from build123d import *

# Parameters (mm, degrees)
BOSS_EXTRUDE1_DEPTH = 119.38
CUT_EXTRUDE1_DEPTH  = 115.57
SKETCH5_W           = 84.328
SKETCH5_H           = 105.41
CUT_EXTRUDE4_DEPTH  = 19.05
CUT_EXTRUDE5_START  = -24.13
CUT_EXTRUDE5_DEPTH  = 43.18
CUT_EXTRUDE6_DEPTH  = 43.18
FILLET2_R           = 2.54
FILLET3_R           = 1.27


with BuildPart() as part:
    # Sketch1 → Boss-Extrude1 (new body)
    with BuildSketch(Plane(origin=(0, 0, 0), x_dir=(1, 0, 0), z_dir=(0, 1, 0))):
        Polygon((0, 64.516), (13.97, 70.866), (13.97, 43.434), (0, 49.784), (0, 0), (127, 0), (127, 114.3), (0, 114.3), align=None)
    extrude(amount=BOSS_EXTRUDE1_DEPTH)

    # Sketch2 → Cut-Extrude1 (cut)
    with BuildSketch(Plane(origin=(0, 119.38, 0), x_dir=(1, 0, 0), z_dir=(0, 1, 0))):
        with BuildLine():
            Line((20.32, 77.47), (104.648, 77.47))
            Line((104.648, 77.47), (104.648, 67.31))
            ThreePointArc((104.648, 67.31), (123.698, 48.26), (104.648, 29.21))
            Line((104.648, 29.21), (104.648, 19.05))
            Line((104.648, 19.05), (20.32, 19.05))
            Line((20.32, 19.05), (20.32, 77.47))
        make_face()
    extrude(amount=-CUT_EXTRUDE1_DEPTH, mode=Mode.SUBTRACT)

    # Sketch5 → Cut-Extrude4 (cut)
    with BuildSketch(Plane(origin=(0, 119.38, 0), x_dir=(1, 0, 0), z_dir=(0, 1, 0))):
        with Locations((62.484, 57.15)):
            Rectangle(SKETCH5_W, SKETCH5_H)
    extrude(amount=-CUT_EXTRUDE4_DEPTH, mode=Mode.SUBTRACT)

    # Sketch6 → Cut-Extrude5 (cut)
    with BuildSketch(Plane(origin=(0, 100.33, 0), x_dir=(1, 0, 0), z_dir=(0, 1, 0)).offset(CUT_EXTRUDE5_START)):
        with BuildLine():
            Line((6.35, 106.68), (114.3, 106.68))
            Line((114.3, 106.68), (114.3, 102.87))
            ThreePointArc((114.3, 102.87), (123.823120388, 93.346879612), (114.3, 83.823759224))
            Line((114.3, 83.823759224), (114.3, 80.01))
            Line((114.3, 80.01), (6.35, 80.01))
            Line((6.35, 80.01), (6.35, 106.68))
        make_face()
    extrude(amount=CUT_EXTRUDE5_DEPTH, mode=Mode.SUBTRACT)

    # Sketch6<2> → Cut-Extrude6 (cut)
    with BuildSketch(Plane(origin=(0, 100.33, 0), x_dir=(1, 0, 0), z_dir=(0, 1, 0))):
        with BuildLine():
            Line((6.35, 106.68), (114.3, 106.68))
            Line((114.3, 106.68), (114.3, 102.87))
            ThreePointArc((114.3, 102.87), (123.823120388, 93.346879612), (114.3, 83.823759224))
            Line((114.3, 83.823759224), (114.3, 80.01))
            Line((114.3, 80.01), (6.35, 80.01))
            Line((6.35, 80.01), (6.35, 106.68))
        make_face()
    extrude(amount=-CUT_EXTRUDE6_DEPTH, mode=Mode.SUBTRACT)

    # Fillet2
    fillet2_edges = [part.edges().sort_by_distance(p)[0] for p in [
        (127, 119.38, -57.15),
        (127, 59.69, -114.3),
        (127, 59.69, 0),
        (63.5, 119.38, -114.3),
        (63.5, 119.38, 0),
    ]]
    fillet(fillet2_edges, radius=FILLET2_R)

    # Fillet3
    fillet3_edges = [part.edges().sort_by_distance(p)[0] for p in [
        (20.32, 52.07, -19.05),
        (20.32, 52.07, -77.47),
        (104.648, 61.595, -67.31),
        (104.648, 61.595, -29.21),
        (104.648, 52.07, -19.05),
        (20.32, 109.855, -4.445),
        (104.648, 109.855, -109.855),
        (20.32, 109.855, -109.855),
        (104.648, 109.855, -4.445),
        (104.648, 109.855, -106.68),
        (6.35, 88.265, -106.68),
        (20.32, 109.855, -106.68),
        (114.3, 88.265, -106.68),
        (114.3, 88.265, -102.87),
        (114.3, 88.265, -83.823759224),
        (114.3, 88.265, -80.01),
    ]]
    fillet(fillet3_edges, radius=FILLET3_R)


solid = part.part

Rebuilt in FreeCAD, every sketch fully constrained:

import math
import FreeCAD as App
import Part
import Sketcher
Q = App.Units.Quantity


def edges_at(feature, points):
    """Names of the edges that pass closest to the given points."""
    edges = feature.Shape.Edges
    near = lambda p: min(range(len(edges)), key=lambda i: edges[i].distToShape(Part.Vertex(*p))[0])
    return sorted({f"Edge{near(p) + 1}" for p in points})


def add_polygon(sketch, points):
    """Adds a closed chain of lines whose ends are joined by coincident constraints."""
    first, n = sketch.GeometryCount, len(points)
    for a, b in zip(points, points[1:] + points[:1]):
        sketch.addGeometry(Part.LineSegment(App.Vector(*a, 0), App.Vector(*b, 0)), False)
    for i in range(n):
        sketch.addConstraint(Sketcher.Constraint("Coincident", first + i, 2, first + (i + 1) % n, 1))

doc = App.newDocument("Part")
body = doc.addObject("PartDesign::Body", "Body")

# Sketch on XZ plane
sketch1 = doc.addObject("Sketcher::SketchObject", "Sketch")
body.addObject(sketch1)
sketch1.AttachmentSupport = (doc.XZ_Plane, [""])
sketch1.MapMode = "FlatFace"
add_polygon(sketch1, [(0, -64.516), (13.97, -70.866), (13.97, -43.434), (0, -49.784), (0, 0), (127, 0), (127, -114.3), (0, -114.3)])  # lines 0-7
sketch1.addConstraint(Sketcher.Constraint("Vertical", 1))
sketch1.addConstraint(Sketcher.Constraint("Vertical", 3))
sketch1.addConstraint(Sketcher.Constraint("Horizontal", 4))
sketch1.addConstraint(Sketcher.Constraint("Vertical", 5))
sketch1.addConstraint(Sketcher.Constraint("Horizontal", 6))
sketch1.addConstraint(Sketcher.Constraint("Vertical", 7))
sketch1.addConstraint(Sketcher.Constraint("Coincident", 3, 2, -1, 1))
sketch1.addConstraint(Sketcher.Constraint("PointOnObject", 6, 2, -2))
sketch1.addConstraint(Sketcher.Constraint("Equal", 3, 7))
sketch1.addConstraint(Sketcher.Constraint("Equal", 0, 2))
sketch1.addConstraint(Sketcher.Constraint("DistanceX", 4, 1, 4, 2, Q("5 in")))
sketch1.addConstraint(Sketcher.Constraint("DistanceY", 5, 2, 5, 1, Q("4.5 in")))
sketch1.addConstraint(Sketcher.Constraint("DistanceY", 1, 1, 1, 2, Q("1.08 in")))
sketch1.addConstraint(Sketcher.Constraint("DistanceY", 3, 1, 3, 2, Q("1.96 in")))
sketch1.addConstraint(Sketcher.Constraint("DistanceX", -1, 1, 0, 2, Q("0.55 in")))
pad1 = doc.addObject("PartDesign::Pad", "Pad")
body.addObject(pad1)
pad1.Profile = sketch1
pad1.Length = Q("4.7 in")
pad1.Reversed = True

# Sketch on XZ plane
sketch2 = doc.addObject("Sketcher::SketchObject", "Sketch001")
body.addObject(sketch2)
sketch2.AttachmentSupport = (doc.XZ_Plane, [""])
sketch2.MapMode = "FlatFace"
sketch2.AttachmentOffset = App.Placement(App.Vector(0, 0, -4.7 * 25.4), App.Rotation())
sketch2.addGeometry(Part.LineSegment(App.Vector(104.648, -77.47, 0), App.Vector(20.32, -77.47, 0)), False)
sketch2.addGeometry(Part.LineSegment(App.Vector(20.32, -77.47, 0), App.Vector(20.32, -19.05, 0)), False)
sketch2.addGeometry(Part.LineSegment(App.Vector(20.32, -19.05, 0), App.Vector(104.648, -19.05, 0)), False)
sketch2.addGeometry(Part.LineSegment(App.Vector(104.648, -19.05, 0), App.Vector(104.648, -29.21, 0)), False)
sketch2.addGeometry(Part.ArcOfCircle(Part.Circle(App.Vector(104.648, -48.26, 0), App.Vector(0, 0, 1), 19.05), math.radians(-90), math.radians(90)), False)
sketch2.addGeometry(Part.LineSegment(App.Vector(104.648, -67.31, 0), App.Vector(104.648, -77.47, 0)), False)
sketch2.addConstraint(Sketcher.Constraint("Coincident", 0, 2, 1, 1))
sketch2.addConstraint(Sketcher.Constraint("Coincident", 1, 2, 2, 1))
sketch2.addConstraint(Sketcher.Constraint("Coincident", 2, 2, 3, 1))
sketch2.addConstraint(Sketcher.Constraint("Coincident", 3, 2, 4, 2))
sketch2.addConstraint(Sketcher.Constraint("Coincident", 4, 1, 5, 1))
sketch2.addConstraint(Sketcher.Constraint("Coincident", 5, 2, 0, 1))
sketch2.addConstraint(Sketcher.Constraint("Horizontal", 0))
sketch2.addConstraint(Sketcher.Constraint("Vertical", 1))
sketch2.addConstraint(Sketcher.Constraint("Horizontal", 2))
sketch2.addConstraint(Sketcher.Constraint("Vertical", 3))
sketch2.addConstraint(Sketcher.Constraint("Vertical", 5))
sketch2.addConstraint(Sketcher.Constraint("Vertical", 4, 3, 2, 2))
sketch2.addConstraint(Sketcher.Constraint("Vertical", 3, 2, 4, 1))
sketch2.addConstraint(Sketcher.Constraint("Equal", 3, 5))
sketch2.addConstraint(Sketcher.Constraint("Radius", 4, Q("0.75 in")))
sketch2.addConstraint(Sketcher.Constraint("DistanceY", 1, 1, 1, 2, Q("2.3 in")))
sketch2.addConstraint(Sketcher.Constraint("DistanceX", 0, 2, 0, 1, Q("3.32 in")))
sketch2.addConstraint(Sketcher.Constraint("DistanceY", 4, 3, -1, 1, Q("1.9 in")))
sketch2.addConstraint(Sketcher.Constraint("DistanceX", -1, 1, 0, 2, Q("0.8 in")))
pocket1 = doc.addObject("PartDesign::Pocket", "Pocket")
body.addObject(pocket1)
pocket1.Profile = sketch2
pocket1.Length = Q("4.55 in")
pocket1.Reversed = True

# Sketch on XZ plane
sketch3 = doc.addObject("Sketcher::SketchObject", "Sketch002")
body.addObject(sketch3)
sketch3.AttachmentSupport = (doc.XZ_Plane, [""])
sketch3.MapMode = "FlatFace"
sketch3.AttachmentOffset = App.Placement(App.Vector(0, 0, -4.7 * 25.4), App.Rotation())
add_polygon(sketch3, [(20.32, -109.855), (20.32, -4.445), (104.648, -4.445), (104.648, -109.855)])  # lines 0-3
sketch3.addConstraint(Sketcher.Constraint("Vertical", 0))
sketch3.addConstraint(Sketcher.Constraint("Horizontal", 1))
sketch3.addConstraint(Sketcher.Constraint("Vertical", 2))
sketch3.addConstraint(Sketcher.Constraint("Horizontal", 3))
sketch3.addConstraint(Sketcher.Constraint("DistanceX", 1, 1, 1, 2, Q("3.32 in")))
sketch3.addConstraint(Sketcher.Constraint("DistanceY", 0, 1, 0, 2, Q("4.15 in")))
sketch3.addConstraint(Sketcher.Constraint("DistanceX", -1, 1, 0, 2, Q("0.8 in")))
sketch3.addConstraint(Sketcher.Constraint("DistanceY", 0, 2, -1, 1, Q("0.175 in")))
pocket2 = doc.addObject("PartDesign::Pocket", "Pocket001")
body.addObject(pocket2)
pocket2.Profile = sketch3
pocket2.Length = Q("0.75 in")
pocket2.Reversed = True

# Sketch on XZ plane
sketch4 = doc.addObject("Sketcher::SketchObject", "Sketch003")
body.addObject(sketch4)
sketch4.AttachmentSupport = (doc.XZ_Plane, [""])
sketch4.MapMode = "FlatFace"
sketch4.AttachmentOffset = App.Placement(App.Vector(0, 0, -3 * 25.4), App.Rotation())
sketch4.addGeometry(Part.LineSegment(App.Vector(114.3, -106.68, 0), App.Vector(6.35, -106.68, 0)), False)
sketch4.addGeometry(Part.LineSegment(App.Vector(6.35, -106.68, 0), App.Vector(6.35, -80.01, 0)), False)
sketch4.addGeometry(Part.LineSegment(App.Vector(6.35, -80.01, 0), App.Vector(114.3, -80.01, 0)), False)
sketch4.addGeometry(Part.LineSegment(App.Vector(114.3, -80.01, 0), App.Vector(114.3, -83.823759, 0)), False)
sketch4.addGeometry(Part.ArcOfCircle(Part.Circle(App.Vector(114.3, -93.34688, 0), App.Vector(0, 0, 1), 9.52312), math.radians(-90), math.radians(90)), False)
sketch4.addGeometry(Part.LineSegment(App.Vector(114.3, -102.87, 0), App.Vector(114.3, -106.68, 0)), False)
sketch4.addConstraint(Sketcher.Constraint("Coincident", 0, 2, 1, 1))
sketch4.addConstraint(Sketcher.Constraint("Coincident", 1, 2, 2, 1))
sketch4.addConstraint(Sketcher.Constraint("Coincident", 2, 2, 3, 1))
sketch4.addConstraint(Sketcher.Constraint("Coincident", 3, 2, 4, 2))
sketch4.addConstraint(Sketcher.Constraint("Coincident", 4, 1, 5, 1))
sketch4.addConstraint(Sketcher.Constraint("Coincident", 5, 2, 0, 1))
sketch4.addConstraint(Sketcher.Constraint("Horizontal", 0))
sketch4.addConstraint(Sketcher.Constraint("Vertical", 1))
sketch4.addConstraint(Sketcher.Constraint("Horizontal", 2))
sketch4.addConstraint(Sketcher.Constraint("Vertical", 3))
sketch4.addConstraint(Sketcher.Constraint("Vertical", 5))
sketch4.addConstraint(Sketcher.Constraint("Vertical", 4, 3, 2, 2))
sketch4.addConstraint(Sketcher.Constraint("Vertical", 3, 2, 4, 1))
sketch4.addConstraint(Sketcher.Constraint("DistanceX", 0, 2, 0, 1, Q("4.25 in")))
sketch4.addConstraint(Sketcher.Constraint("DistanceY", 1, 1, 1, 2, Q("1.05 in")))
sketch4.addConstraint(Sketcher.Constraint("DistanceY", 5, 2, 5, 1, Q("0.15 in")))
sketch4.addConstraint(Sketcher.Constraint("DistanceX", -1, 1, 4, 3, Q("4.5 in")))
sketch4.addConstraint(Sketcher.Constraint("DistanceY", 0, 2, -1, 1, Q("4.2 in")))
sketch4.addConstraint(Sketcher.Constraint("Radius", 4, 9.52312))
pocket3 = doc.addObject("PartDesign::Pocket", "Pocket002")
body.addObject(pocket3)
pocket3.Profile = sketch4
pocket3.Length = Q("1.7 in")

# Sketch on XZ plane
sketch5 = doc.addObject("Sketcher::SketchObject", "Sketch004")
body.addObject(sketch5)
sketch5.AttachmentSupport = (doc.XZ_Plane, [""])
sketch5.MapMode = "FlatFace"
sketch5.AttachmentOffset = App.Placement(App.Vector(0, 0, -3.95 * 25.4), App.Rotation())
sketch5.addGeometry(Part.LineSegment(App.Vector(114.3, -106.68, 0), App.Vector(6.35, -106.68, 0)), False)
sketch5.addGeometry(Part.LineSegment(App.Vector(6.35, -106.68, 0), App.Vector(6.35, -80.01, 0)), False)
sketch5.addGeometry(Part.LineSegment(App.Vector(6.35, -80.01, 0), App.Vector(114.3, -80.01, 0)), False)
sketch5.addGeometry(Part.LineSegment(App.Vector(114.3, -80.01, 0), App.Vector(114.3, -83.823759, 0)), False)
sketch5.addGeometry(Part.ArcOfCircle(Part.Circle(App.Vector(114.3, -93.34688, 0), App.Vector(0, 0, 1), 9.52312), math.radians(-90), math.radians(90)), False)
sketch5.addGeometry(Part.LineSegment(App.Vector(114.3, -102.87, 0), App.Vector(114.3, -106.68, 0)), False)
sketch5.addConstraint(Sketcher.Constraint("Coincident", 0, 2, 1, 1))
sketch5.addConstraint(Sketcher.Constraint("Coincident", 1, 2, 2, 1))
sketch5.addConstraint(Sketcher.Constraint("Coincident", 2, 2, 3, 1))
sketch5.addConstraint(Sketcher.Constraint("Coincident", 3, 2, 4, 2))
sketch5.addConstraint(Sketcher.Constraint("Coincident", 4, 1, 5, 1))
sketch5.addConstraint(Sketcher.Constraint("Coincident", 5, 2, 0, 1))
sketch5.addConstraint(Sketcher.Constraint("Horizontal", 0))
sketch5.addConstraint(Sketcher.Constraint("Vertical", 1))
sketch5.addConstraint(Sketcher.Constraint("Horizontal", 2))
sketch5.addConstraint(Sketcher.Constraint("Vertical", 3))
sketch5.addConstraint(Sketcher.Constraint("Vertical", 5))
sketch5.addConstraint(Sketcher.Constraint("Vertical", 4, 3, 2, 2))
sketch5.addConstraint(Sketcher.Constraint("Vertical", 3, 2, 4, 1))
sketch5.addConstraint(Sketcher.Constraint("DistanceX", 0, 2, 0, 1, Q("4.25 in")))
sketch5.addConstraint(Sketcher.Constraint("DistanceY", 1, 1, 1, 2, Q("1.05 in")))
sketch5.addConstraint(Sketcher.Constraint("DistanceY", 5, 2, 5, 1, Q("0.15 in")))
sketch5.addConstraint(Sketcher.Constraint("DistanceX", -1, 1, 4, 3, Q("4.5 in")))
sketch5.addConstraint(Sketcher.Constraint("DistanceY", 0, 2, -1, 1, Q("4.2 in")))
sketch5.addConstraint(Sketcher.Constraint("Radius", 4, 9.52312))
pocket4 = doc.addObject("PartDesign::Pocket", "Pocket003")
body.addObject(pocket4)
pocket4.Profile = sketch5
pocket4.Length = Q("1.7 in")
pocket4.Reversed = True
doc.recompute()

fillet = doc.addObject("PartDesign::Fillet", "Fillet")
body.addObject(fillet)
fillet.Base = (pocket4, edges_at(pocket4, [
    (127, 119.38, -57.15),
    (127, 59.69, -114.3),
    (127, 59.69, 0),
    (63.5, 119.38, -114.3),
    (63.5, 119.38, 0),
]))
fillet.Radius = Q("0.1 in")
doc.recompute()

fillet2 = doc.addObject("PartDesign::Fillet", "Fillet001")
body.addObject(fillet2)
fillet2.Base = (fillet, edges_at(fillet, [
    (20.32, 52.07, -19.05),
    (20.32, 52.07, -77.47),
    (104.648, 61.595, -67.31),
    (104.648, 61.595, -29.21),
    (104.648, 52.07, -19.05),
    (20.32, 109.855, -4.445),
    (104.648, 109.855, -109.855),
    (20.32, 109.855, -109.855),
    (104.648, 109.855, -4.445),
    (104.648, 109.855, -106.68),
    (6.35, 88.265, -106.68),
    (20.32, 109.855, -106.68),
    (114.3, 88.265, -106.68),
    (114.3, 88.265, -102.87),
    (114.3, 88.265, -83.824),
    (114.3, 88.265, -80.01),
]))
fillet2.Radius = Q("0.05 in")

doc.recompute()
